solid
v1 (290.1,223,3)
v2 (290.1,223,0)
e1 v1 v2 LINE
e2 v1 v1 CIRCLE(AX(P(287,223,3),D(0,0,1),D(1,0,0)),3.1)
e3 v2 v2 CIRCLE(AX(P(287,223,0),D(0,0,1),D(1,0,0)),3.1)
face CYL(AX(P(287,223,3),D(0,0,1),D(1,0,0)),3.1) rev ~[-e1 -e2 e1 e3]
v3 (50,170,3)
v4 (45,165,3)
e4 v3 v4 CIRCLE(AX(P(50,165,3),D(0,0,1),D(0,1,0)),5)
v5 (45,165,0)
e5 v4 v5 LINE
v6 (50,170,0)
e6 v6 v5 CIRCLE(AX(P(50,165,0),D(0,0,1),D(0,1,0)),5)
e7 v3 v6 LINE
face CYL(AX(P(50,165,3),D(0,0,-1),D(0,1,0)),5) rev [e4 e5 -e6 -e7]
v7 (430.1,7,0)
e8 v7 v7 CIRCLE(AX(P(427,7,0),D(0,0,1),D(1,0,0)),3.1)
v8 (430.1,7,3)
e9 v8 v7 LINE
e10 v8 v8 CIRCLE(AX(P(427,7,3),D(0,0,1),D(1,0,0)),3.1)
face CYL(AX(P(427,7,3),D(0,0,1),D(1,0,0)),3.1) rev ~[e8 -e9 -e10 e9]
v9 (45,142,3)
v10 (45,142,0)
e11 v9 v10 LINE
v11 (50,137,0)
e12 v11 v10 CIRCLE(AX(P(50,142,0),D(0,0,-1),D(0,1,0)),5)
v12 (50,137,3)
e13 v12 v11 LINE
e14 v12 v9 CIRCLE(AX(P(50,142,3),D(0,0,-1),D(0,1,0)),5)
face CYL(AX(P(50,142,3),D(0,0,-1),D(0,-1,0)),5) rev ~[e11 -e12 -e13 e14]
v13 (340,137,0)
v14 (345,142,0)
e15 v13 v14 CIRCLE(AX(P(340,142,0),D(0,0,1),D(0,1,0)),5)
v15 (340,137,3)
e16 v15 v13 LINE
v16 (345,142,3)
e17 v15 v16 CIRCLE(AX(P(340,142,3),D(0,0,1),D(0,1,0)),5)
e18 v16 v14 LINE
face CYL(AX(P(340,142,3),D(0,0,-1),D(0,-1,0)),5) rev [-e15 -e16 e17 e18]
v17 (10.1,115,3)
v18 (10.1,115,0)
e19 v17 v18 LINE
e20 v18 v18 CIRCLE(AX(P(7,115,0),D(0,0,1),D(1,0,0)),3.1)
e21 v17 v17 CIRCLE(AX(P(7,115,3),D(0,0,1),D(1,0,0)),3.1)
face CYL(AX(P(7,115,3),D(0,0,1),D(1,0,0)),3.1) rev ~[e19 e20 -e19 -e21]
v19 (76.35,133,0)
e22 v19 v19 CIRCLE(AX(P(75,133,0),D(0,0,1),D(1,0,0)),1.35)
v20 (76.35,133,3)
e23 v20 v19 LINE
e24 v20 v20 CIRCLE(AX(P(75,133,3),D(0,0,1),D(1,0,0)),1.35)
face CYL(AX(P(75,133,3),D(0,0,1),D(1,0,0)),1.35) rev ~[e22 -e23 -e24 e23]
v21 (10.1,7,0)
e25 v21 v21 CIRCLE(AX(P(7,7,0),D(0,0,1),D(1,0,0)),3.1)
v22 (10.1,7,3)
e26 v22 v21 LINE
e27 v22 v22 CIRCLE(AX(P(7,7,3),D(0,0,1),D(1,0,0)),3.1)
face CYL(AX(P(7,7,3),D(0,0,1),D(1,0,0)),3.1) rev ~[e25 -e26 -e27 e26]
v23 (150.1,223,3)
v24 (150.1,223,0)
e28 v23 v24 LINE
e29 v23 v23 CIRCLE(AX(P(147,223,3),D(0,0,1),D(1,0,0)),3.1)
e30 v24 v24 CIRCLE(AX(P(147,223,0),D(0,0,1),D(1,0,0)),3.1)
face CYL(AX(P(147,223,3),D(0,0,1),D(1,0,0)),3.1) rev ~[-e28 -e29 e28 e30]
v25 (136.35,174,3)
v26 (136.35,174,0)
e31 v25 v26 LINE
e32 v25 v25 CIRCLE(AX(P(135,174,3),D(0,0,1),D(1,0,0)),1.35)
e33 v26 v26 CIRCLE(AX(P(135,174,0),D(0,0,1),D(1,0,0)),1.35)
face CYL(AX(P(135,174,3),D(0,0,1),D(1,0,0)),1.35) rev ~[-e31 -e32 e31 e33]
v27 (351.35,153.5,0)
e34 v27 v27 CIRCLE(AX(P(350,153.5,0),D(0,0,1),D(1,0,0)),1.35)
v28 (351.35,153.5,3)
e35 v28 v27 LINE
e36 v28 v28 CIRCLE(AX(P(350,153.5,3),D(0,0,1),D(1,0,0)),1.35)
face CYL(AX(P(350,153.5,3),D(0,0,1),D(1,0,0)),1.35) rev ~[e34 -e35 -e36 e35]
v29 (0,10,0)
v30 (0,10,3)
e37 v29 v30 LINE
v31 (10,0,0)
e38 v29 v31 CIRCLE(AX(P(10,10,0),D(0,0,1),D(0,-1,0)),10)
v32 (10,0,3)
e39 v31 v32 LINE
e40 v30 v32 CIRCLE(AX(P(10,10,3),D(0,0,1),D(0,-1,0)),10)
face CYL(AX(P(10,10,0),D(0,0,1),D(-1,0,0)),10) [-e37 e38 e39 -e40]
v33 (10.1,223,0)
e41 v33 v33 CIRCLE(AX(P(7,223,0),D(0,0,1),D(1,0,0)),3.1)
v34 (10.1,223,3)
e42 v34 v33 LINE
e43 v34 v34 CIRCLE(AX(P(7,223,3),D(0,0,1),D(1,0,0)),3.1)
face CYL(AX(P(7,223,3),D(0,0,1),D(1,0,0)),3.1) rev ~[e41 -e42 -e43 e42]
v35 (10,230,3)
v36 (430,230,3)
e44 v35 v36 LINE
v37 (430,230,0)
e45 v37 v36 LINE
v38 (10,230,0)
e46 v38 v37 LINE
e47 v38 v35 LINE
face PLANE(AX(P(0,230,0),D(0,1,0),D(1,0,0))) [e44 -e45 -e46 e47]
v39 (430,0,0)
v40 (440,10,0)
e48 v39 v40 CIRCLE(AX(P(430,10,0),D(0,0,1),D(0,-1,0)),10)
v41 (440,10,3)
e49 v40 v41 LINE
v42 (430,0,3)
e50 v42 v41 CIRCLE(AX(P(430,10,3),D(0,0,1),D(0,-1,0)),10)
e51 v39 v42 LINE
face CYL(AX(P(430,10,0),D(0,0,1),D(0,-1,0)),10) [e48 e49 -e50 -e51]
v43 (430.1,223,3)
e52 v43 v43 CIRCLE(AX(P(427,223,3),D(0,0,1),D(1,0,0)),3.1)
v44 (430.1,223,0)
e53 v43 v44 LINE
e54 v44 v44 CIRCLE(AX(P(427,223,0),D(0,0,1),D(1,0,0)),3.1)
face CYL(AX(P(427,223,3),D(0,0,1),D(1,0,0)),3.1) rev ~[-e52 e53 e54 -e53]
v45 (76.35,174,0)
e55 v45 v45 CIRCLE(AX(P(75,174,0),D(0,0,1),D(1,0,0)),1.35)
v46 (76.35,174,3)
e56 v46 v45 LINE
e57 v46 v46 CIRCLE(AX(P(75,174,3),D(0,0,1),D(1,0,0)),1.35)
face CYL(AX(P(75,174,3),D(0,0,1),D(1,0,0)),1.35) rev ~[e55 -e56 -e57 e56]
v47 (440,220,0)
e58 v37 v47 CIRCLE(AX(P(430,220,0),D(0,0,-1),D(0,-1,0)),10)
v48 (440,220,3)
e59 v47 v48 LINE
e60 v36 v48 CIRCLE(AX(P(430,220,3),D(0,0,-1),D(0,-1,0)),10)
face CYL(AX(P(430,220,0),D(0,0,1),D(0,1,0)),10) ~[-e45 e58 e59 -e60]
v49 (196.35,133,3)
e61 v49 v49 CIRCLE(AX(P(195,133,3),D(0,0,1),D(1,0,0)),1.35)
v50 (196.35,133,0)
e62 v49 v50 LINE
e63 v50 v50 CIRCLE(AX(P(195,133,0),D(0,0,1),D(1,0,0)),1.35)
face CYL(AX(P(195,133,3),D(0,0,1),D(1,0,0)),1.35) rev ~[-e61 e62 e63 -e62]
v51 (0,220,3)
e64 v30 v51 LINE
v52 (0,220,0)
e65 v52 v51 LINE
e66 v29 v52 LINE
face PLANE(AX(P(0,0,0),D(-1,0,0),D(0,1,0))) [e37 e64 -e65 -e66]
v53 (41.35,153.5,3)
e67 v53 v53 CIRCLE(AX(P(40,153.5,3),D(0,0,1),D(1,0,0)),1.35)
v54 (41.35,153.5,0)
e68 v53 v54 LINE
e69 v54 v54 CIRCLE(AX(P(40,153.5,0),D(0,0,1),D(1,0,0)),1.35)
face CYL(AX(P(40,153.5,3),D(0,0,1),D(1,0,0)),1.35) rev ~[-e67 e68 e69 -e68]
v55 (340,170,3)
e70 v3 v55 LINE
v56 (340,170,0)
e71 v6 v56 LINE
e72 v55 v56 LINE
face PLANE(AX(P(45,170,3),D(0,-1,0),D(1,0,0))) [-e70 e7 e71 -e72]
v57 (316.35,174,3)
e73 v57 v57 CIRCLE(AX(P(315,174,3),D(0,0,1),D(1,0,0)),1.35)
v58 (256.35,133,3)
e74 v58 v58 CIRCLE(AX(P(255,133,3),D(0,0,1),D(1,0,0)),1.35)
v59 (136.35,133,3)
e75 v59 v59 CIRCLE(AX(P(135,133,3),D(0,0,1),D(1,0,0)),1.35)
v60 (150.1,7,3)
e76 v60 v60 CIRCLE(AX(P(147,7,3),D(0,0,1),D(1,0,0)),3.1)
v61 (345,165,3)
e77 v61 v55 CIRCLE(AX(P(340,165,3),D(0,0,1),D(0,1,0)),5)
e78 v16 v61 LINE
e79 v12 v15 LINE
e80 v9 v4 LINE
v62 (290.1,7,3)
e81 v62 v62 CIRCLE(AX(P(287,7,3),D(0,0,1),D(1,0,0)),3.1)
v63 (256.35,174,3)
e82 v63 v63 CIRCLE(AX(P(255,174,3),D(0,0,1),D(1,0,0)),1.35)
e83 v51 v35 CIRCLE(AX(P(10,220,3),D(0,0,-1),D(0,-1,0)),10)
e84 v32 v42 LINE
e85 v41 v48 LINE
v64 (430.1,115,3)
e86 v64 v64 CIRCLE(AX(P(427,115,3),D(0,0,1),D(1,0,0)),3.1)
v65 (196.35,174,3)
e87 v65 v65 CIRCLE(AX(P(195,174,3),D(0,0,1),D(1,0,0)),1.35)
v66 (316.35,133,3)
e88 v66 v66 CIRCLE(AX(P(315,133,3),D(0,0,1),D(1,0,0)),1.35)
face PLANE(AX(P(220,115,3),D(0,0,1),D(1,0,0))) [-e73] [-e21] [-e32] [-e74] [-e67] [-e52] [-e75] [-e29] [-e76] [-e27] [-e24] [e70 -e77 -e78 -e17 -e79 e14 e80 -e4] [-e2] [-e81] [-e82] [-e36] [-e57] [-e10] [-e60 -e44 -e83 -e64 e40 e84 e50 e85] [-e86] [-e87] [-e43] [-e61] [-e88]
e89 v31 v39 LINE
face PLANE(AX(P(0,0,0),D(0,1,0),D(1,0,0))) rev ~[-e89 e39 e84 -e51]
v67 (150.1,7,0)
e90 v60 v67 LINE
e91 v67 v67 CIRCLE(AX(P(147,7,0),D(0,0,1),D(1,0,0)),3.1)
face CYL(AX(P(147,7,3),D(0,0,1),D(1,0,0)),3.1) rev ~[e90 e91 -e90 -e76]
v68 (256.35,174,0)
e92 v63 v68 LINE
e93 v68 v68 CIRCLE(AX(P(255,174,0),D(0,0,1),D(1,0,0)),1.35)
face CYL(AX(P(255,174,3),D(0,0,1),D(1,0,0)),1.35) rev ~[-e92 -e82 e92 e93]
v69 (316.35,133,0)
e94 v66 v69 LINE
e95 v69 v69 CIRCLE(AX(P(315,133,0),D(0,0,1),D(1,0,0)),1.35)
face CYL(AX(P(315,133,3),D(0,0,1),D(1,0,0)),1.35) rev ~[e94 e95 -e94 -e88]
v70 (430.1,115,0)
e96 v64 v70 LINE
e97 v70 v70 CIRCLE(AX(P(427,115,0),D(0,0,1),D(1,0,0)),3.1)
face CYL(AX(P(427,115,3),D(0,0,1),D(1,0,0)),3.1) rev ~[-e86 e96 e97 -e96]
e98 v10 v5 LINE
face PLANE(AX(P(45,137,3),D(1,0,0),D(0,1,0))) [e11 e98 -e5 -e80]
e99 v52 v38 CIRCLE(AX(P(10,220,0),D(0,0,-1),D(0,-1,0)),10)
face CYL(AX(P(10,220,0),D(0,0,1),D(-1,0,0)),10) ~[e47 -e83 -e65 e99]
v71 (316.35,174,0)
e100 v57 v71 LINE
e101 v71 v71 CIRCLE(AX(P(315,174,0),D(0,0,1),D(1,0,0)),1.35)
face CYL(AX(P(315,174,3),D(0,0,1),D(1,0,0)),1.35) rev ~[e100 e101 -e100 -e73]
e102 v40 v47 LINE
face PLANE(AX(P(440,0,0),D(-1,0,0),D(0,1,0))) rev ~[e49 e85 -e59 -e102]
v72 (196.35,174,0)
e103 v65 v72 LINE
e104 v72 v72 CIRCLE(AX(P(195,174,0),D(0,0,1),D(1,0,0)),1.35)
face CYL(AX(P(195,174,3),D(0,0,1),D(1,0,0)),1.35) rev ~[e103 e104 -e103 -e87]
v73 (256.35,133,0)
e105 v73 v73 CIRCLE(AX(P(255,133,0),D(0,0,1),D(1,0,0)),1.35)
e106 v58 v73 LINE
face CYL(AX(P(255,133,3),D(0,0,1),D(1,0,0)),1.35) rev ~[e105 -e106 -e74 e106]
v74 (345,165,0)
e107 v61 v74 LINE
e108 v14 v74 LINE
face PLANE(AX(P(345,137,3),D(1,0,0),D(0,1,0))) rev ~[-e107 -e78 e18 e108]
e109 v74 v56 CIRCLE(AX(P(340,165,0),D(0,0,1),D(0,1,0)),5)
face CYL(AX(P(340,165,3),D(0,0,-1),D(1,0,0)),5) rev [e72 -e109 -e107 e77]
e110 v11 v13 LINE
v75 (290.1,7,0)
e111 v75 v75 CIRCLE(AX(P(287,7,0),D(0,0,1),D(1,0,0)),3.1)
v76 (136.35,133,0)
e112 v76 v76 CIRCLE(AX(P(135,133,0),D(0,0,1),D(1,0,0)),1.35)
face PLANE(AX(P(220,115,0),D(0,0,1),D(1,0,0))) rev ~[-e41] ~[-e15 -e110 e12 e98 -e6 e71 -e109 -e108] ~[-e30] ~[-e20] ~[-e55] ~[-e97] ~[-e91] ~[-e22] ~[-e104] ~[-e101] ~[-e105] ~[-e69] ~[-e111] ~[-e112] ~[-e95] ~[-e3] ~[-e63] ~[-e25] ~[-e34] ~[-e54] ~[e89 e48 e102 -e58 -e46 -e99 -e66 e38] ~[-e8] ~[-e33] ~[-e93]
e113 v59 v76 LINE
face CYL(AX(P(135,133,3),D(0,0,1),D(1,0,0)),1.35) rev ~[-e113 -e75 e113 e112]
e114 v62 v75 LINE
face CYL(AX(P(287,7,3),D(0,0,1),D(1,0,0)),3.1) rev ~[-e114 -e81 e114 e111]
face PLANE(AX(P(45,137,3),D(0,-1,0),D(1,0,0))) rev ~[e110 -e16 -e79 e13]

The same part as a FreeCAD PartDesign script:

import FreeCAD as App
import Part
import Sketcher

V = App.Vector


def edges_at(feature, points):
    """Names of the edges that pass closest to the given points."""
    edges = feature.Shape.Edges
    near = lambda p: min(range(len(edges)), key=lambda i: edges[i].distToShape(Part.Vertex(*p))[0])
    return sorted({f"Edge{near(p) + 1}" for p in points})


def add_polygon(sketch, points):
    """Adds a closed chain of lines whose ends are joined by coincident constraints."""
    first, n = sketch.GeometryCount, len(points)
    for a, b in zip(points, points[1:] + points[:1]):
        sketch.addGeometry(Part.LineSegment(App.Vector(*a, 0), App.Vector(*b, 0)), False)
    for i in range(n):
        sketch.addConstraint(Sketcher.Constraint("Coincident", first + i, 2, first + (i + 1) % n, 1))

doc = App.newDocument("Part")
body = doc.addObject("PartDesign::Body", "Body")

# Sketch on XY plane
sketch1 = body.newObject("Sketcher::SketchObject", "Sketch")
sketch1.AttachmentSupport = (doc.getObject("XY_Plane"), [""])
sketch1.MapMode = "FlatFace"
add_polygon(sketch1, [(0, 230), (0, 0), (440, 0), (440, 230)])  # lines 0-3
sketch1.addConstraint([
    Sketcher.Constraint("Vertical", 0),
    Sketcher.Constraint("Horizontal", 1),
    Sketcher.Constraint("Vertical", 2),
    Sketcher.Constraint("Horizontal", 3),
    Sketcher.Constraint("Coincident", 0, 2, -1, 1),
    Sketcher.Constraint("DistanceX", 1, 1, 1, 2, 440.0),
    Sketcher.Constraint("DistanceY", 0, 2, 0, 1, 230.0),
])
pad1 = body.newObject("PartDesign::Pad", "Pad")
pad1.Profile = sketch1
pad1.Length = 3

# Sketch on XY plane
sketch2 = body.newObject("Sketcher::SketchObject", "Sketch001")
sketch2.AttachmentSupport = (doc.getObject("XY_Plane"), [""])
sketch2.MapMode = "FlatFace"
sketch2.AttachmentOffset = App.Placement(V(0, 0, 3), App.Rotation())
add_polygon(sketch2, [(45, 170), (45, 137), (345, 137), (345, 170)])  # lines 0-3
sketch2.addGeometry(Part.Circle(V(40, 153.5, 0), V(0, 0, 1), 1.4), False)  # 4
sketch2.addGeometry(Part.Circle(V(75, 174, 0), V(0, 0, 1), 1.4), False)  # 5
sketch2.addGeometry(Part.Circle(V(75, 133, 0), V(0, 0, 1), 1.4), False)  # 6
sketch2.addGeometry(Part.Circle(V(135, 174, 0), V(0, 0, 1), 1.4), False)  # 7
sketch2.addGeometry(Part.Circle(V(135, 133, 0), V(0, 0, 1), 1.4), False)  # 8
sketch2.addGeometry(Part.Circle(V(195, 174, 0), V(0, 0, 1), 1.4), False)  # 9
sketch2.addGeometry(Part.Circle(V(195, 133, 0), V(0, 0, 1), 1.4), False)  # 10
sketch2.addGeometry(Part.Circle(V(255, 174, 0), V(0, 0, 1), 1.4), False)  # 11
sketch2.addGeometry(Part.Circle(V(255, 133, 0), V(0, 0, 1), 1.4), False)  # 12
sketch2.addGeometry(Part.Circle(V(315, 174, 0), V(0, 0, 1), 1.4), False)  # 13
sketch2.addGeometry(Part.Circle(V(315, 133, 0), V(0, 0, 1), 1.4), False)  # 14
sketch2.addGeometry(Part.Circle(V(350, 153.5, 0), V(0, 0, 1), 1.4), False)  # 15
sketch2.addGeometry(Part.Circle(V(7, 7, 0), V(0, 0, 1), 3.1), False)  # 16
sketch2.addGeometry(Part.Circle(V(7, 115, 0), V(0, 0, 1), 3.1), False)  # 17
sketch2.addGeometry(Part.Circle(V(147, 7, 0), V(0, 0, 1), 3.1), False)  # 18
sketch2.addGeometry(Part.Circle(V(287, 7, 0), V(0, 0, 1), 3.1), False)  # 19
sketch2.addGeometry(Part.Circle(V(427, 7, 0), V(0, 0, 1), 3.1), False)  # 20
sketch2.addGeometry(Part.Circle(V(427, 115, 0), V(0, 0, 1), 3.1), False)  # 21
sketch2.addGeometry(Part.Circle(V(7, 223, 0), V(0, 0, 1), 3.1), False)  # 22
sketch2.addGeometry(Part.Circle(V(147, 223, 0), V(0, 0, 1), 3.1), False)  # 23
sketch2.addGeometry(Part.Circle(V(287, 223, 0), V(0, 0, 1), 3.1), False)  # 24
sketch2.addGeometry(Part.Circle(V(427, 223, 0), V(0, 0, 1), 3.1), False)  # 25
sketch2.addConstraint([
    Sketcher.Constraint("Vertical", 0),
    Sketcher.Constraint("Horizontal", 1),
    Sketcher.Constraint("Vertical", 2),
    Sketcher.Constraint("Horizontal", 3),
    Sketcher.Constraint("Equal", 4, 5),
    Sketcher.Constraint("Equal", 5, 6),
    Sketcher.Constraint("Equal", 6, 7),
    Sketcher.Constraint("Equal", 7, 8),
    Sketcher.Constraint("Equal", 8, 9),
    Sketcher.Constraint("Equal", 9, 10),
    Sketcher.Constraint("Equal", 10, 11),
    Sketcher.Constraint("Equal", 11, 12),
    Sketcher.Constraint("Equal", 12, 13),
    Sketcher.Constraint("Equal", 13, 14),
    Sketcher.Constraint("Equal", 14, 15),
    Sketcher.Constraint("Equal", 16, 17),
    Sketcher.Constraint("Equal", 17, 18),
    Sketcher.Constraint("Equal", 18, 19),
    Sketcher.Constraint("Equal", 19, 20),
    Sketcher.Constraint("Equal", 20, 21),
    Sketcher.Constraint("Equal", 21, 22),
    Sketcher.Constraint("Equal", 22, 23),
    Sketcher.Constraint("Equal", 23, 24),
    Sketcher.Constraint("Equal", 24, 25),
    Sketcher.Constraint("Horizontal", 5, 3, 7, 3),
    Sketcher.Constraint("Horizontal", 6, 3, 8, 3),
    Sketcher.Constraint("Horizontal", 7, 3, 9, 3),
    Sketcher.Constraint("Horizontal", 8, 3, 10, 3),
    Sketcher.Constraint("Horizontal", 9, 3, 11, 3),
    Sketcher.Constraint("Horizontal", 10, 3, 12, 3),
    Sketcher.Constraint("Horizontal", 11, 3, 13, 3),
    Sketcher.Constraint("Horizontal", 12, 3, 14, 3),
    Sketcher.Constraint("Horizontal", 4, 3, 15, 3),
    Sketcher.Constraint("Horizontal", 16, 3, 18, 3),
    Sketcher.Constraint("Horizontal", 18, 3, 19, 3),
    Sketcher.Constraint("Horizontal", 19, 3, 20, 3),
    Sketcher.Constraint("Horizontal", 17, 3, 21, 3),
    Sketcher.Constraint("Horizontal", 22, 3, 23, 3),
    Sketcher.Constraint("Horizontal", 23, 3, 24, 3),
    Sketcher.Constraint("Horizontal", 24, 3, 25, 3),
    Sketcher.Constraint("Vertical", 5, 3, 6, 3),
    Sketcher.Constraint("Vertical", 7, 3, 8, 3),
    Sketcher.Constraint("Vertical", 9, 3, 10, 3),
    Sketcher.Constraint("Vertical", 11, 3, 12, 3),
    Sketcher.Constraint("Vertical", 13, 3, 14, 3),
    Sketcher.Constraint("Vertical", 16, 3, 17, 3),
    Sketcher.Constraint("Vertical", 20, 3, 21, 3),
    Sketcher.Constraint("Vertical", 17, 3, 22, 3),
    Sketcher.Constraint("Vertical", 18, 3, 23, 3),
    Sketcher.Constraint("Vertical", 19, 3, 24, 3),
    Sketcher.Constraint("Vertical", 21, 3, 25, 3),
    Sketcher.Constraint("Diameter", 4, 2.7),
    Sketcher.Constraint("Diameter", 16, 6.2),
    Sketcher.Constraint("DistanceX", 1, 1, 1, 2, 300.0),
    Sketcher.Constraint("DistanceY", 0, 2, 0, 1, 33.0),
    Sketcher.Constraint("DistanceX", -1, 1, 4, 3, 40.0),
    Sketcher.Constraint("DistanceX", -1, 1, 5, 3, 75.0),
    Sketcher.Constraint("DistanceY", -1, 1, 5, 3, 174.0),
    Sketcher.Constraint("DistanceY", -1, 1, 6, 3, 133.0),
    Sketcher.Constraint("DistanceX", -1, 1, 7, 3, 135.0),
    Sketcher.Constraint("DistanceX", -1, 1, 9, 3, 195.0),
    Sketcher.Constraint("DistanceX", -1, 1, 11, 3, 255.0),
    Sketcher.Constraint("DistanceX", -1, 1, 13, 3, 315.0),
    Sketcher.Constraint("DistanceX", -1, 1, 15, 3, 350.0),
    Sketcher.Constraint("DistanceX", -1, 1, 16, 3, 7.0),
    Sketcher.Constraint("DistanceY", -1, 1, 16, 3, 7.0),
    Sketcher.Constraint("DistanceY", -1, 1, 17, 3, 115.0),
    Sketcher.Constraint("DistanceX", -1, 1, 18, 3, 147.0),
    Sketcher.Constraint("DistanceX", -1, 1, 19, 3, 287.0),
    Sketcher.Constraint("DistanceX", -1, 1, 20, 3, 427.0),
    Sketcher.Constraint("DistanceY", -1, 1, 22, 3, 223.0),
    Sketcher.Constraint("DistanceX", -1, 1, 0, 2, 45.0),
    Sketcher.Constraint("DistanceY", -1, 1, 0, 2, 137.0),
    Sketcher.Constraint("DistanceY", -1, 1, 4, 3, 153.5),
])
pocket1 = body.newObject("PartDesign::Pocket", "Pocket")
pocket1.Profile = sketch2
pocket1.Type = "ThroughAll"
doc.recompute()

fillet = body.newObject("PartDesign::Fillet", "Fillet")
fillet.Base = (pocket1, edges_at(pocket1, [
    (440, 0, 1.5),
    (0, 0, 1.5),
    (440, 230, 1.5),
    (0, 230, 1.5),
]))
fillet.Radius = 10
doc.recompute()

fillet2 = body.newObject("PartDesign::Fillet", "Fillet001")
fillet2.Base = (fillet, edges_at(fillet, [
    (45, 137, 1.5),
    (45, 170, 1.5),
    (345, 170, 1.5),
    (345, 137, 1.5),
]))
fillet2.Radius = 5

doc.recompute()
